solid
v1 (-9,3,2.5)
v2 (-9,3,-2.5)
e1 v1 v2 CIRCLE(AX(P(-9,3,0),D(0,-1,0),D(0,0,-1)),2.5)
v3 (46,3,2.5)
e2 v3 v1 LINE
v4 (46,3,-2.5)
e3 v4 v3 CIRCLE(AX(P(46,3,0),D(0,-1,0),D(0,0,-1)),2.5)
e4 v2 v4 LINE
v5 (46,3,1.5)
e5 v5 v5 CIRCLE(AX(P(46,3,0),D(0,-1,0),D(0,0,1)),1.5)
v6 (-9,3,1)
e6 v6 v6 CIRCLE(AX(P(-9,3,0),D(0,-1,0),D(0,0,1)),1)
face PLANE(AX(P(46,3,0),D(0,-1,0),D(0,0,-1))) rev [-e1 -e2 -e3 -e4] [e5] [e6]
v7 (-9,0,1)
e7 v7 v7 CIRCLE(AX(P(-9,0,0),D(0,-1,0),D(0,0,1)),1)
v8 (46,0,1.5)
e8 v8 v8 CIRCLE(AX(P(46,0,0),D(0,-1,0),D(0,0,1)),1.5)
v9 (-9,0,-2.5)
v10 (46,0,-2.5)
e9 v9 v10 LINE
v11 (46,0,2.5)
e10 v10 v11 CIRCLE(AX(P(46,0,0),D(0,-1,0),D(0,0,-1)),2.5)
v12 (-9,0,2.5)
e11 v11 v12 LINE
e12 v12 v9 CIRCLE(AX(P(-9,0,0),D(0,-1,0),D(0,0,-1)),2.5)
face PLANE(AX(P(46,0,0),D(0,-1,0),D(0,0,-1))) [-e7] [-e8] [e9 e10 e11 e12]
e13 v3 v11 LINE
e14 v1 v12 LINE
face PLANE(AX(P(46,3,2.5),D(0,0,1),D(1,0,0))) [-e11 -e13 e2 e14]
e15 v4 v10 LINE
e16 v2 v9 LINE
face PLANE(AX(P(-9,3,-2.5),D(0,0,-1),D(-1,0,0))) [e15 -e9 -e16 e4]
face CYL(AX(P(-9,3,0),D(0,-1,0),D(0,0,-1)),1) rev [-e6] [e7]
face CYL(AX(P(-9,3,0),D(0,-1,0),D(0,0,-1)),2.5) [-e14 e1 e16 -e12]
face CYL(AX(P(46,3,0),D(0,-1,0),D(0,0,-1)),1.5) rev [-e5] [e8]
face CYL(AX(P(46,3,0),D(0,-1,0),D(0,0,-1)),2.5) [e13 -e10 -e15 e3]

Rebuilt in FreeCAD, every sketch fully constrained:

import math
import FreeCAD as App
import Part
import Sketcher

V = App.Vector
Q = App.Units.Quantity

doc = App.newDocument("Part")
body = doc.addObject("PartDesign::Body", "Body")

# Sketch on XZ plane
sketch1 = doc.addObject("Sketcher::SketchObject", "Sketch")
body.addObject(sketch1)
sketch1.AttachmentSupport = (doc.XZ_Plane, [""])
sketch1.MapMode = "FlatFace"
sketch1.addGeometry([
    Part.LineSegment(V(46, 2.5, 0), V(-9, 2.5, 0)),  # 0
    Part.ArcOfCircle(Part.Circle(V(-9, 0, 0), V(0, 0, 1), 2.5), math.radians(90), math.radians(270)),  # 1
    Part.LineSegment(V(-9, -2.5, 0), V(46, -2.5, 0)),  # 2
    Part.ArcOfCircle(Part.Circle(V(46, 0, 0), V(0, 0, 1), 2.5), math.radians(-90), math.radians(90)),  # 3
    Part.Circle(V(-9, 0, 0), V(0, 0, 1), 1),  # 4
    Part.Circle(V(46, 0, 0), V(0, 0, 1), 1.5),  # 5
], False)
sketch1.addConstraint([
    Sketcher.Constraint("Tangent", 0, 2, 1, 1),
    Sketcher.Constraint("Tangent", 1, 2, 2, 1),
    Sketcher.Constraint("Tangent", 2, 2, 3, 1),
    Sketcher.Constraint("Tangent", 3, 2, 0, 1),
    Sketcher.Constraint("Horizontal", 0),
    Sketcher.Constraint("Horizontal", 2),
    Sketcher.Constraint("Coincident", 4, 3, 1, 3),
    Sketcher.Constraint("Coincident", 5, 3, 3, 3),
    Sketcher.Constraint("PointOnObject", 1, 3, -1),
    Sketcher.Constraint("Diameter", 4, Q("2 mm")),
    Sketcher.Constraint("Diameter", 5, Q("3 mm")),
    Sketcher.Constraint("Radius", 1, Q("2.5 mm")),
    Sketcher.Constraint("DistanceX", 0, 2, 0, 1, Q("55 mm")),
    Sketcher.Constraint("DistanceX", 1, 3, -1, 1, Q("9 mm")),
])
pad1 = doc.addObject("PartDesign::Pad", "Pad")
body.addObject(pad1)
pad1.Profile = sketch1
pad1.Length = 3
pad1.Reversed = True

doc.recompute()
